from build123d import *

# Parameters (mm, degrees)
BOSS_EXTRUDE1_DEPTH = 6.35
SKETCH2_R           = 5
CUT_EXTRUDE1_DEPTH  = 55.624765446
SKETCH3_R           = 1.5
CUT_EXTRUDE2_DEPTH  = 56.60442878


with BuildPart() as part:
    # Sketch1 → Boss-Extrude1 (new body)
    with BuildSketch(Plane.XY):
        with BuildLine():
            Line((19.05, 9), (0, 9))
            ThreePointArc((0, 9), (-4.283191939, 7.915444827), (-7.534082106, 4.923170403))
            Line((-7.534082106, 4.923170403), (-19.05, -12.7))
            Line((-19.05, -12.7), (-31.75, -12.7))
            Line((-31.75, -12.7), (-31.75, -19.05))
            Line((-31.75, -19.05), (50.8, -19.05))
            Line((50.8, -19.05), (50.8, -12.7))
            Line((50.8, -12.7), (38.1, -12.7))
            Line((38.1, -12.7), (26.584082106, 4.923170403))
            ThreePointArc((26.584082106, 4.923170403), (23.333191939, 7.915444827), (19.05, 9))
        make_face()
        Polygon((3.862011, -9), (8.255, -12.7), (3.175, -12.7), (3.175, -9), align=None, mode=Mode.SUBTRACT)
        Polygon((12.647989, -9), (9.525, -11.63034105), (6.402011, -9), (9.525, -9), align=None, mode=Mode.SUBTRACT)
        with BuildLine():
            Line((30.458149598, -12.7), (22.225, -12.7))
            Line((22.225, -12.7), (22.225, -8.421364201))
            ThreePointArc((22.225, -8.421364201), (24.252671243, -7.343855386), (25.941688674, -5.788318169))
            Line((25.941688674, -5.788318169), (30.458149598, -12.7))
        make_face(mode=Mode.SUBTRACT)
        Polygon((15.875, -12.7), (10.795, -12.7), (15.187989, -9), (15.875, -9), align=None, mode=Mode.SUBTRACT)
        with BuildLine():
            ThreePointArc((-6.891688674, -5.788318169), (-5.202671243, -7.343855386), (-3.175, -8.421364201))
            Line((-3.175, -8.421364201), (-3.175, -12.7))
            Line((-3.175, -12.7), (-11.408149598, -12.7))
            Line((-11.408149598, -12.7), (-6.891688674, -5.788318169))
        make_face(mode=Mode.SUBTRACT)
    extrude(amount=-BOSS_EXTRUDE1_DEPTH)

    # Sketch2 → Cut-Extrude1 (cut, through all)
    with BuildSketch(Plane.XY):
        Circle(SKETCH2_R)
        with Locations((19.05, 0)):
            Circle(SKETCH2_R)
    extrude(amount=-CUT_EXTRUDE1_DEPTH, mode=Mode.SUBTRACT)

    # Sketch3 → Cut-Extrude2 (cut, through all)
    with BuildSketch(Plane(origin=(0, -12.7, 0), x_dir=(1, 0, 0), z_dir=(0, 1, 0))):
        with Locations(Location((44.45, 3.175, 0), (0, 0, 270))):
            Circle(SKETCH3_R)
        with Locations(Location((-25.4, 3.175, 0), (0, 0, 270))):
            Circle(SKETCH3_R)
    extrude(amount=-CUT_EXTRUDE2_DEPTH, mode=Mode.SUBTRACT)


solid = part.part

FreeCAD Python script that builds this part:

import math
import FreeCAD as App
import Part
import Sketcher

V = App.Vector
Q = App.Units.Quantity

doc = App.newDocument("Part")
body = doc.addObject("PartDesign::Body", "Body")

# Sketch on XY plane
sketch1 = doc.addObject("Sketcher::SketchObject", "Sketch")
body.addObject(sketch1)
sketch1.AttachmentSupport = (doc.XY_Plane, [""])
sketch1.MapMode = "FlatFace"
sketch1.addGeometry([
    Part.LineSegment(V(19.1, 9, 0), V(0, 9, 0)),  # 0
    Part.ArcOfCircle(Part.Circle(V(0, 0, 0), V(0, 0, 1), 9), math.radians(90), math.radians(147)),  # 1
    Part.LineSegment(V(-7.5, 4.9, 0), V(-19.1, -12.7, 0)),  # 2
    Part.LineSegment(V(-19.1, -12.7, 0), V(-31.8, -12.7, 0)),  # 3
    Part.LineSegment(V(-31.8, -12.7, 0), V(-31.8, -19.1, 0)),  # 4
    Part.LineSegment(V(-31.8, -19.1, 0), V(50.8, -19.1, 0)),  # 5
    Part.LineSegment(V(50.8, -19.1, 0), V(50.8, -12.7, 0)),  # 6
    Part.LineSegment(V(50.8, -12.7, 0), V(38.1, -12.7, 0)),  # 7
    Part.LineSegment(V(38.1, -12.7, 0), V(26.6, 4.9, 0)),  # 8
    Part.ArcOfCircle(Part.Circle(V(19, 0, 0), V(0, 0, 1), 9), math.radians(33), math.radians(90)),  # 9
    Part.LineSegment(V(3.2, -9, 0), V(3.9, -9, 0)),  # 10
    Part.LineSegment(V(3.9, -9, 0), V(8.3, -12.7, 0)),  # 11
    Part.LineSegment(V(8.3, -12.7, 0), V(3.2, -12.7, 0)),  # 12
    Part.LineSegment(V(3.2, -12.7, 0), V(3.2, -9, 0)),  # 13
    Part.LineSegment(V(15.9, -9, 0), V(15.9, -12.7, 0)),  # 14
    Part.LineSegment(V(15.9, -12.7, 0), V(10.8, -12.7, 0)),  # 15
    Part.LineSegment(V(10.8, -12.7, 0), V(15.2, -9, 0)),  # 16
    Part.LineSegment(V(15.2, -9, 0), V(15.9, -9, 0)),  # 17
    Part.LineSegment(V(6.4, -9, 0), V(12.6, -9, 0)),  # 18
    Part.LineSegment(V(12.6, -9, 0), V(9.5, -11.6, 0)),  # 19
    Part.LineSegment(V(9.5, -11.6, 0), V(6.4, -9, 0)),  # 20
    Part.LineSegment(V(-11.4, -12.7, 0), V(-6.9, -5.8, 0)),  # 21
    Part.ArcOfCircle(Part.Circle(V(0, 0, 0), V(0, 0, 1), 9), math.radians(-140), math.radians(-111)),  # 22
    Part.LineSegment(V(-3.2, -8.4, 0), V(-3.2, -12.7, 0)),  # 23
    Part.LineSegment(V(-3.2, -12.7, 0), V(-11.4, -12.7, 0)),  # 24
    Part.LineSegment(V(25.9, -5.8, 0), V(30.5, -12.7, 0)),  # 25
    Part.LineSegment(V(30.5, -12.7, 0), V(22.2, -12.7, 0)),  # 26
    Part.LineSegment(V(22.2, -12.7, 0), V(22.2, -8.4, 0)),  # 27
    Part.ArcOfCircle(Part.Circle(V(19, 0, 0), V(0, 0, 1), 9), math.radians(-69), math.radians(-40)),  # 28
], False)
sketch1.addConstraint([
    Sketcher.Constraint("Tangent", 0, 2, 1, 1),
    Sketcher.Constraint("Tangent", 1, 2, 2, 1),
    Sketcher.Constraint("Coincident", 2, 2, 3, 1),
    Sketcher.Constraint("Coincident", 3, 2, 4, 1),
    Sketcher.Constraint("Coincident", 4, 2, 5, 1),
    Sketcher.Constraint("Coincident", 5, 2, 6, 1),
    Sketcher.Constraint("Coincident", 6, 2, 7, 1),
    Sketcher.Constraint("Coincident", 7, 2, 8, 1),
    Sketcher.Constraint("Tangent", 8, 2, 9, 1),
    Sketcher.Constraint("Tangent", 9, 2, 0, 1),
    Sketcher.Constraint("Coincident", 10, 2, 11, 1),
    Sketcher.Constraint("Coincident", 11, 2, 12, 1),
    Sketcher.Constraint("Coincident", 12, 2, 13, 1),
    Sketcher.Constraint("Coincident", 13, 2, 10, 1),
    Sketcher.Constraint("Coincident", 14, 2, 15, 1),
    Sketcher.Constraint("Coincident", 15, 2, 16, 1),
    Sketcher.Constraint("Coincident", 16, 2, 17, 1),
    Sketcher.Constraint("Coincident", 17, 2, 14, 1),
    Sketcher.Constraint("Coincident", 18, 2, 19, 1),
    Sketcher.Constraint("Coincident", 19, 2, 20, 1),
    Sketcher.Constraint("Coincident", 20, 2, 18, 1),
    Sketcher.Constraint("Coincident", 21, 2, 22, 1),
    Sketcher.Constraint("Coincident", 22, 2, 23, 1),
    Sketcher.Constraint("Coincident", 23, 2, 24, 1),
    Sketcher.Constraint("Coincident", 24, 2, 21, 1),
    Sketcher.Constraint("Coincident", 25, 2, 26, 1),
    Sketcher.Constraint("Coincident", 26, 2, 27, 1),
    Sketcher.Constraint("Coincident", 27, 2, 28, 1),
    Sketcher.Constraint("Coincident", 28, 2, 25, 1),
    Sketcher.Constraint("Horizontal", 0),
    Sketcher.Constraint("Horizontal", 3),
    Sketcher.Constraint("Vertical", 4),
    Sketcher.Constraint("Horizontal", 5),
    Sketcher.Constraint("Vertical", 6),
    Sketcher.Constraint("Horizontal", 7),
    Sketcher.Constraint("Horizontal", 10),
    Sketcher.Constraint("Horizontal", 12),
    Sketcher.Constraint("Vertical", 13),
    Sketcher.Constraint("Vertical", 14),
    Sketcher.Constraint("Horizontal", 15),
    Sketcher.Constraint("Horizontal", 17),
    Sketcher.Constraint("Horizontal", 18),
    Sketcher.Constraint("Vertical", 23),
    Sketcher.Constraint("Horizontal", 24),
    Sketcher.Constraint("Horizontal", 26),
    Sketcher.Constraint("Vertical", 27),
    Sketcher.Constraint("Coincident", 1, 3, -1, 1),
    Sketcher.Constraint("Coincident", 22, 3, -1, 1),
    Sketcher.Constraint("Coincident", 28, 3, 9, 3),
    Sketcher.Constraint("Equal", 1, 9),
    Sketcher.Constraint("Equal", 9, 22),
    Sketcher.Constraint("Equal", 22, 28),
    Sketcher.Constraint("Symmetric", 12, 2, 23, 2, -2),
    Sketcher.Constraint("Parallel", 16, 19),
    Sketcher.Constraint("Parallel", 11, 20),
    Sketcher.Constraint("Parallel", 2, 21),
    Sketcher.Constraint("Parallel", 8, 25),
    Sketcher.Constraint("Horizontal", 3, 2, 6, 2),
    Sketcher.Constraint("Horizontal", 1, 2, 8, 2),
    Sketcher.Constraint("Horizontal", 7, 2, 11, 2),
    Sketcher.Constraint("Horizontal", 12, 2, 14, 2),
    Sketcher.Constraint("Horizontal", 13, 2, 16, 2),
    Sketcher.Constraint("Horizontal", 17, 2, 18, 2),
    Sketcher.Constraint("Horizontal", 24, 2, 25, 2),
    Sketcher.Constraint("Horizontal", 22, 2, 27, 2),
    Sketcher.Constraint("Horizontal", 21, 2, 28, 2),
    Sketcher.Constraint("Equal", 3, 7),
    Sketcher.Constraint("Equal", 12, 15),
    Sketcher.Constraint("Equal", 10, 17),
    Sketcher.Constraint("DistanceX", 3, 2, 3, 1, Q("0.5 in")),
    Sketcher.Constraint("DistanceX", 12, 2, 12, 1, Q("0.2 in")),
    Sketcher.Constraint("DistanceX", -1, 1, 5, 2, Q("2 in")),
    Sketcher.Constraint("DistanceX", 0, 2, 0, 1, Q("0.75 in")),
    Sketcher.Constraint("DistanceY", 4, 2, 4, 1, Q("0.25 in")),
    Sketcher.Constraint("DistanceY", 2, 2, -1, 1, Q("0.5 in")),
    Sketcher.Constraint("DistanceX", 11, 2, 14, 2, Q("0.3 in")),
    Sketcher.Constraint("DistanceX", 18, 2, 16, 2, Q("0.1 in")),
    Sketcher.Constraint("DistanceX", 10, 2, 20, 2, Q("0.1 in")),
    Sketcher.Constraint("Radius", 1, 9.0),
    Sketcher.Constraint("DistanceX", 22, 2, 13, 2, Q("0.25 in")),
    Sketcher.Constraint("DistanceY", 13, 1, 13, 2, 3.7),
    Sketcher.Constraint("Distance", 21, 8.256498),
    Sketcher.Constraint("DistanceX", 10, 1, 10, 2, 0.687011),
])
pad1 = doc.addObject("PartDesign::Pad", "Pad")
body.addObject(pad1)
pad1.Profile = sketch1
pad1.Length = Q("0.25 in")
pad1.Reversed = True

# Sketch on XY plane
sketch2 = doc.addObject("Sketcher::SketchObject", "Sketch001")
body.addObject(sketch2)
sketch2.AttachmentSupport = (doc.XY_Plane, [""])
sketch2.MapMode = "FlatFace"
sketch2.addGeometry([
    Part.Circle(V(0, 0, 0), V(0, 0, 1), 5),
    Part.Circle(V(19, 0, 0), V(0, 0, 1), 5),
], False)
sketch2.addConstraint([
    Sketcher.Constraint("Coincident", 0, 3, -1, 1),
    Sketcher.Constraint("Equal", 0, 1),
    Sketcher.Constraint("PointOnObject", 1, 3, -1),
    Sketcher.Constraint("Diameter", 0, 10.0),
    Sketcher.Constraint("DistanceX", -1, 1, 1, 3, Q("0.75 in")),
])
pocket1 = doc.addObject("PartDesign::Pocket", "Pocket")
body.addObject(pocket1)
pocket1.Profile = sketch2
pocket1.Type = "ThroughAll"

# Sketch on XZ plane
sketch3 = doc.addObject("Sketcher::SketchObject", "Sketch002")
body.addObject(sketch3)
sketch3.AttachmentSupport = (doc.XZ_Plane, [""])
sketch3.MapMode = "FlatFace"
sketch3.AttachmentOffset = App.Placement(V(0, 0, 0.5 * 25.4), App.Rotation())
sketch3.addGeometry([
    Part.Circle(V(44.5, -3.2, 0), V(0, 0, 1), 1.5),
    Part.Circle(V(-25.4, -3.2, 0), V(0, 0, 1), 1.5),
], False)
sketch3.addConstraint([
    Sketcher.Constraint("Equal", 0, 1),
    Sketcher.Constraint("Horizontal", 0, 3, 1, 3),
    Sketcher.Constraint("DistanceX", 1, 3, -1, 1, Q("1 in")),
    Sketcher.Constraint("Diameter", 0, 3.0),
    Sketcher.Constraint("DistanceX", -1, 1, 0, 3, Q("1.75 in")),
    Sketcher.Constraint("DistanceY", 0, 3, -1, 1, Q("0.125 in")),
])
pocket2 = doc.addObject("PartDesign::Pocket", "Pocket001")
body.addObject(pocket2)
pocket2.Profile = sketch3
pocket2.Type = "ThroughAll"
pocket2.Reversed = True

doc.recompute()
